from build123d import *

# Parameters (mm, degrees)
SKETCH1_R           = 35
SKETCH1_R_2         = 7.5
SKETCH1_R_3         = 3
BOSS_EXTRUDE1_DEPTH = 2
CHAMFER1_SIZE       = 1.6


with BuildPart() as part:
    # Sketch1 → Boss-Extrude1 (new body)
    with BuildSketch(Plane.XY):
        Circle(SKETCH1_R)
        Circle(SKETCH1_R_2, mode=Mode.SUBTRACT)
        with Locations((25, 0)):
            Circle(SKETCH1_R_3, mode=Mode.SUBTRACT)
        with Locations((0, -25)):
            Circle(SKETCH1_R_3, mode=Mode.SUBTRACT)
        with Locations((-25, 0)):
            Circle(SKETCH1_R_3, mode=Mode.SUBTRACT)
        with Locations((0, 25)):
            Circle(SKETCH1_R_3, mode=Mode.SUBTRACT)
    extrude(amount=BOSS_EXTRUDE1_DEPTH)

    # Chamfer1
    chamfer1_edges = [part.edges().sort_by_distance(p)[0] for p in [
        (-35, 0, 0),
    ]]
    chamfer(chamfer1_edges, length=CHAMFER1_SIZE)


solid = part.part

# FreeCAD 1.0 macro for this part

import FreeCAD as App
import Part
import Sketcher
Q = App.Units.Quantity


def edges_at(feature, points):
    """Names of the edges that pass closest to the given points."""
    edges = feature.Shape.Edges
    near = lambda p: min(range(len(edges)), key=lambda i: edges[i].distToShape(Part.Vertex(*p))[0])
    return sorted({f"Edge{near(p) + 1}" for p in points})

doc = App.newDocument("Part")
body = doc.addObject("PartDesign::Body", "Body")

# Sketch on XY plane
sketch1 = body.newObject("Sketcher::SketchObject", "Sketch")
sketch1.AttachmentSupport = (doc.getObject("XY_Plane"), [""])
sketch1.MapMode = "FlatFace"
sketch1.addGeometry([
    Part.Circle(App.Vector(0, 0, 0), App.Vector(0, 0, 1), 35),  # 0
    Part.Circle(App.Vector(0, -25, 0), App.Vector(0, 0, 1), 3),  # 1
    Part.Circle(App.Vector(-25, 0, 0), App.Vector(0, 0, 1), 3),  # 2
    Part.Circle(App.Vector(0, 0, 0), App.Vector(0, 0, 1), 7.5),  # 3
    Part.Circle(App.Vector(25, 0, 0), App.Vector(0, 0, 1), 3),  # 4
    Part.Circle(App.Vector(0, 25, 0), App.Vector(0, 0, 1), 3),  # 5
], False)
sketch1.addConstraint([
    Sketcher.Constraint("Coincident", 0, 3, -1, 1),
    Sketcher.Constraint("Coincident", 3, 3, -1, 1),
    Sketcher.Constraint("Equal", 1, 2),
    Sketcher.Constraint("Equal", 2, 4),
    Sketcher.Constraint("Equal", 4, 5),
    Sketcher.Constraint("Symmetric", 2, 3, 4, 3, -1, 1),
    Sketcher.Constraint("Symmetric", 1, 3, 5, 3, -1, 1),
    Sketcher.Constraint("PointOnObject", 1, 3, -2),
    Sketcher.Constraint("PointOnObject", 2, 3, -1),
    Sketcher.Constraint("Diameter", 0, Q("70 mm")),
    Sketcher.Constraint("Diameter", 1, Q("6 mm")),
    Sketcher.Constraint("Diameter", 3, Q("15 mm")),
    Sketcher.Constraint("DistanceY", 1, 3, -1, 1, Q("25 mm")),
    Sketcher.Constraint("DistanceX", 2, 3, -1, 1, Q("25 mm")),
])
pad1 = body.newObject("PartDesign::Pad", "Pad")
pad1.Profile = sketch1
pad1.Length = 2
doc.recompute()

chamfer = body.newObject("PartDesign::Chamfer", "Chamfer")
chamfer.Base = (pad1, edges_at(pad1, [(-35, 0, 0)]))
chamfer.Size = 1.6

doc.recompute()
